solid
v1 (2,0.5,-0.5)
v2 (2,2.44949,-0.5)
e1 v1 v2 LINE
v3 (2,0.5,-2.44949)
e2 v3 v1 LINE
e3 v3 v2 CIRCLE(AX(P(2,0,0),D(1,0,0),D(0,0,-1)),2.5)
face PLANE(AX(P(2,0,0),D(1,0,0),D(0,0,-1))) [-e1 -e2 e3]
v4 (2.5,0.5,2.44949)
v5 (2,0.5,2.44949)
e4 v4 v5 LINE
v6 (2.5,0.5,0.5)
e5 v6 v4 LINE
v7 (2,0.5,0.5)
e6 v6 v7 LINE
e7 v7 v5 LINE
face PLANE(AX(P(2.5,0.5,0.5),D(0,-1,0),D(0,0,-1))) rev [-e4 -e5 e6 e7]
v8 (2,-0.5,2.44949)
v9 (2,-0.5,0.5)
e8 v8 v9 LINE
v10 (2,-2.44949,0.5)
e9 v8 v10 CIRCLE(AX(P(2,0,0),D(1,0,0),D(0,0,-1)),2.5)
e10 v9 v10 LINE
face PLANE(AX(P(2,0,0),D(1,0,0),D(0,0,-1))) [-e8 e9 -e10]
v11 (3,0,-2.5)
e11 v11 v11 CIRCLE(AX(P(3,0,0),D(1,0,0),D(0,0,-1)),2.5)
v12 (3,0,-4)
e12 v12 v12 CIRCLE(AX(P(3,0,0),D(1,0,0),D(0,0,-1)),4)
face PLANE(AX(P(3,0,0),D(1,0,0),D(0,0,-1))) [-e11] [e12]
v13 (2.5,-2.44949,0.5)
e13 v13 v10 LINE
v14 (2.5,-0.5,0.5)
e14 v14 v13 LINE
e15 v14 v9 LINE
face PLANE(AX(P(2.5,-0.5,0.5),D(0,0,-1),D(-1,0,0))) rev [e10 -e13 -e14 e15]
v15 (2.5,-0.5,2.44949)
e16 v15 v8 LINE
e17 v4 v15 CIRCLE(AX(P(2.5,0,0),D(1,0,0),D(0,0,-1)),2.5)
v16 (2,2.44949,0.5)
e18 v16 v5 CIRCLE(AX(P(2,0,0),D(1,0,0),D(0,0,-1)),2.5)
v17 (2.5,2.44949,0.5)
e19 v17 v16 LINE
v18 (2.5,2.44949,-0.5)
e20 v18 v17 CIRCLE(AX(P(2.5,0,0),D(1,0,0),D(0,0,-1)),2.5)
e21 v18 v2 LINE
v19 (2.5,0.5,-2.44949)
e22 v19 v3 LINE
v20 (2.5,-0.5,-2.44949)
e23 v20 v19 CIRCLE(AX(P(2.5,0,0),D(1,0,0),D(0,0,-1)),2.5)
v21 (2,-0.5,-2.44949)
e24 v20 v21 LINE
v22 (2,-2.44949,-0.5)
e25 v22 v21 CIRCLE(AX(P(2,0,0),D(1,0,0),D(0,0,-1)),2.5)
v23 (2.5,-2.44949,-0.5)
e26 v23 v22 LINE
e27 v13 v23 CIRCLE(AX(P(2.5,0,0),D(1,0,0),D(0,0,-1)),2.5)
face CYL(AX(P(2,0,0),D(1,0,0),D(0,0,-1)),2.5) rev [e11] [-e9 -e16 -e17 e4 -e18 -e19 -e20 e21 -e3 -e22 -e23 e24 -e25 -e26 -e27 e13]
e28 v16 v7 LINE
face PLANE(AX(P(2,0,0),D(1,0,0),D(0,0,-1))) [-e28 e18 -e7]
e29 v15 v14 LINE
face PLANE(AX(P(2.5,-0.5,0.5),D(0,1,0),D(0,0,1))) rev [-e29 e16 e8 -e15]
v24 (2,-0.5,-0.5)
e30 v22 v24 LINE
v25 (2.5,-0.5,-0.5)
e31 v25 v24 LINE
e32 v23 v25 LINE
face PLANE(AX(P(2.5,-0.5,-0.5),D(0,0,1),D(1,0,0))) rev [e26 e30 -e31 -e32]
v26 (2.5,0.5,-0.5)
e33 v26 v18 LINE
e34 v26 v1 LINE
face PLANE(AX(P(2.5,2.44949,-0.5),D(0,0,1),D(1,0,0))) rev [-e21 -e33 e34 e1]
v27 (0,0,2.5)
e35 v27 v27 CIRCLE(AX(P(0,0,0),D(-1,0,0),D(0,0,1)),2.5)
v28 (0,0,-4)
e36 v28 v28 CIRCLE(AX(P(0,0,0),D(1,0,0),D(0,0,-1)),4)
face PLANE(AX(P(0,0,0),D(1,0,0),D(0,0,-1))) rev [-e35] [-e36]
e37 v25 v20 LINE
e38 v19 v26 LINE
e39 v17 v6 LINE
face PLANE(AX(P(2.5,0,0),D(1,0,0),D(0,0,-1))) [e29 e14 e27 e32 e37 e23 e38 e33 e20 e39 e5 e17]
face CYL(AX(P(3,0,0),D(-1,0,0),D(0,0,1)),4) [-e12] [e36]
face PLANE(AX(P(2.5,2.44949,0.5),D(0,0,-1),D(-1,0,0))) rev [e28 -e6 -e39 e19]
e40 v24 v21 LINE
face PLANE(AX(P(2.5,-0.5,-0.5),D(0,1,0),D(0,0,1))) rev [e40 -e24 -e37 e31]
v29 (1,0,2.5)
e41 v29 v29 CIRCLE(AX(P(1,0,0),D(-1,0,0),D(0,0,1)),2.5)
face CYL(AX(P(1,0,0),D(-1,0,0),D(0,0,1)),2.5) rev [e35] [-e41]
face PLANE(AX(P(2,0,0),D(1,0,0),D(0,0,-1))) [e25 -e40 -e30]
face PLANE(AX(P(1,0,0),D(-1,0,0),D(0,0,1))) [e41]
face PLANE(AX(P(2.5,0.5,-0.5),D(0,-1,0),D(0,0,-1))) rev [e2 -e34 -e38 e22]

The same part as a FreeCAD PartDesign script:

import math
import FreeCAD as App
import Part
import Sketcher

doc = App.newDocument("Part")
params = doc.addObject("Spreadsheet::Sheet", "Params")
for row, (alias, value) in enumerate([
    ("sketch1_diameter", "8 mm"),
    ("pad1_length", "3 mm"),
    ("sketch2_diameter", "5 mm"),
    ("pocket1_length", "1 mm"),
    ("sketch3_diameter", "5 mm"),
    ("pocket2_length", "1 mm"),
    ("sketch4_radius", "2.5 mm"),
    ("pad2_length", "0.5 mm"),
], start=1):
    params.set(f"A{row}", alias)
    params.set(f"B{row}", "=" + value)
    params.setAlias(f"B{row}", alias)

body = doc.addObject("PartDesign::Body", "Body")

sketch1 = body.newObject("Sketcher::SketchObject", "Sketch")
sketch1.AttachmentSupport = (doc.getObject("YZ_Plane"), [""])
sketch1.MapMode = "FlatFace"
sketch1.addGeometry(Part.Circle(App.Vector(0, 0, 0), App.Vector(0, 0, 1), 4), False)
sketch1.addConstraint([
    Sketcher.Constraint("Coincident", 0, 3, -1, 1),
    Sketcher.Constraint("Diameter", 0, 8.0),
])
sketch1.setExpression("Constraints[1]", "Params.sketch1_diameter")
pad1 = body.newObject("PartDesign::Pad", "Pad")
pad1.Profile = sketch1
pad1.setExpression("Length", "Params.pad1_length")

sketch2 = body.newObject("Sketcher::SketchObject", "Sketch001")
sketch2.AttachmentSupport = (doc.getObject("YZ_Plane"), [""])
sketch2.MapMode = "FlatFace"
sketch2.AttachmentOffset = App.Placement(App.Vector(0, 0, 3), App.Rotation())
sketch2.addGeometry(Part.Circle(App.Vector(0, 0, 0), App.Vector(0, 0, 1), 2.5), False)
sketch2.addConstraint([
    Sketcher.Constraint("Coincident", 0, 3, -1, 1),
    Sketcher.Constraint("Diameter", 0, 5.0),
])
sketch2.setExpression("Constraints[1]", "Params.sketch2_diameter")
pocket1 = body.newObject("PartDesign::Pocket", "Pocket")
pocket1.Profile = sketch2
pocket1.setExpression("Length", "Params.pocket1_length")

sketch3 = body.newObject("Sketcher::SketchObject", "Sketch002")
sketch3.AttachmentSupport = (doc.getObject("YZ_Plane"), [""])
sketch3.MapMode = "FlatFace"
sketch3.AttachmentOffset = App.Placement(App.Vector(0, 0, 1), App.Rotation())
sketch3.addGeometry(Part.Circle(App.Vector(0, 0, 0), App.Vector(0, 0, 1), 2.5), False)
sketch3.addConstraint([
    Sketcher.Constraint("Coincident", 0, 3, -1, 1),
    Sketcher.Constraint("Diameter", 0, 5.0),
])
sketch3.setExpression("Constraints[1]", "Params.sketch3_diameter")
pocket2 = body.newObject("PartDesign::Pocket", "Pocket001")
pocket2.Profile = sketch3
pocket2.setExpression("Length", "Params.pocket2_length")

sketch4 = body.newObject("Sketcher::SketchObject", "Sketch003")
sketch4.AttachmentSupport = (doc.getObject("YZ_Plane"), [""])
sketch4.MapMode = "FlatFace"
sketch4.AttachmentOffset = App.Placement(App.Vector(0, 0, 2.5), App.Rotation())
sketch4.addGeometry([
    Part.LineSegment(App.Vector(-0.5, 0.5, 0), App.Vector(-2.4, 0.5, 0)),
    Part.ArcOfCircle(Part.Circle(App.Vector(0, 0, 0), App.Vector(0, 0, 1), 2.5), math.radians(168), math.radians(192)),
    Part.LineSegment(App.Vector(-2.4, -0.5, 0), App.Vector(-0.5, -0.5, 0)),
    Part.LineSegment(App.Vector(-0.5, -0.5, 0), App.Vector(-0.5, -2.4, 0)),
    Part.ArcOfCircle(Part.Circle(App.Vector(0, 0, 0), App.Vector(0, 0, 1), 2.5), math.radians(-102), math.radians(-78)),
    Part.LineSegment(App.Vector(0.5, -2.4, 0), App.Vector(0.5, -0.5, 0)),
    Part.LineSegment(App.Vector(0.5, -0.5, 0), App.Vector(2.4, -0.5, 0)),
    Part.ArcOfCircle(Part.Circle(App.Vector(0, 0, 0), App.Vector(0, 0, 1), 2.5), math.radians(-12), math.radians(12)),
    Part.LineSegment(App.Vector(2.4, 0.5, 0), App.Vector(0.5, 0.5, 0)),
    Part.LineSegment(App.Vector(0.5, 0.5, 0), App.Vector(0.5, 2.4, 0)),
    Part.ArcOfCircle(Part.Circle(App.Vector(0, 0, 0), App.Vector(0, 0, 1), 2.5), math.radians(78), math.radians(102)),
    Part.LineSegment(App.Vector(-0.5, 2.4, 0), App.Vector(-0.5, 0.5, 0)),
], False)
sketch4.addConstraint([
    Sketcher.Constraint("Coincident", 0, 2, 1, 1),
    Sketcher.Constraint("Coincident", 1, 2, 2, 1),
    Sketcher.Constraint("Coincident", 2, 2, 3, 1),
    Sketcher.Constraint("Coincident", 3, 2, 4, 1),
    Sketcher.Constraint("Coincident", 4, 2, 5, 1),
    Sketcher.Constraint("Coincident", 5, 2, 6, 1),
    Sketcher.Constraint("Coincident", 6, 2, 7, 1),
    Sketcher.Constraint("Coincident", 7, 2, 8, 1),
    Sketcher.Constraint("Coincident", 8, 2, 9, 1),
    Sketcher.Constraint("Coincident", 9, 2, 10, 1),
    Sketcher.Constraint("Coincident", 10, 2, 11, 1),
    Sketcher.Constraint("Coincident", 11, 2, 0, 1),
    Sketcher.Constraint("Horizontal", 0),
    Sketcher.Constraint("Horizontal", 2),
    Sketcher.Constraint("Vertical", 3),
    Sketcher.Constraint("Vertical", 5),
    Sketcher.Constraint("Horizontal", 6),
    Sketcher.Constraint("Horizontal", 8),
    Sketcher.Constraint("Vertical", 9),
    Sketcher.Constraint("Vertical", 11),
    Sketcher.Constraint("Coincident", 1, 3, -1, 1),
    Sketcher.Constraint("Coincident", 4, 3, -1, 1),
    Sketcher.Constraint("Coincident", 7, 3, -1, 1),
    Sketcher.Constraint("Coincident", 10, 3, -1, 1),
    Sketcher.Constraint("Equal", 1, 4),
    Sketcher.Constraint("Equal", 4, 7),
    Sketcher.Constraint("Equal", 7, 10),
    Sketcher.Constraint("Symmetric", 2, 2, 8, 2, -1, 1),
    Sketcher.Constraint("Symmetric", 5, 2, 11, 2, -1, 1),
    Sketcher.Constraint("Symmetric", 2, 2, 5, 2, -2),
    Sketcher.Constraint("Equal", 8, 3),
    Sketcher.Constraint("Radius", 1, 2.5),
    Sketcher.Constraint("DistanceY", 1, 2, 0, 2, 1.0),
])
sketch4.setExpression("Constraints[31]", "Params.sketch4_radius")
pad2 = body.newObject("PartDesign::Pad", "Pad001")
pad2.Profile = sketch4
pad2.setExpression("Length", "Params.pad2_length")
pad2.Reversed = True

doc.recompute()
